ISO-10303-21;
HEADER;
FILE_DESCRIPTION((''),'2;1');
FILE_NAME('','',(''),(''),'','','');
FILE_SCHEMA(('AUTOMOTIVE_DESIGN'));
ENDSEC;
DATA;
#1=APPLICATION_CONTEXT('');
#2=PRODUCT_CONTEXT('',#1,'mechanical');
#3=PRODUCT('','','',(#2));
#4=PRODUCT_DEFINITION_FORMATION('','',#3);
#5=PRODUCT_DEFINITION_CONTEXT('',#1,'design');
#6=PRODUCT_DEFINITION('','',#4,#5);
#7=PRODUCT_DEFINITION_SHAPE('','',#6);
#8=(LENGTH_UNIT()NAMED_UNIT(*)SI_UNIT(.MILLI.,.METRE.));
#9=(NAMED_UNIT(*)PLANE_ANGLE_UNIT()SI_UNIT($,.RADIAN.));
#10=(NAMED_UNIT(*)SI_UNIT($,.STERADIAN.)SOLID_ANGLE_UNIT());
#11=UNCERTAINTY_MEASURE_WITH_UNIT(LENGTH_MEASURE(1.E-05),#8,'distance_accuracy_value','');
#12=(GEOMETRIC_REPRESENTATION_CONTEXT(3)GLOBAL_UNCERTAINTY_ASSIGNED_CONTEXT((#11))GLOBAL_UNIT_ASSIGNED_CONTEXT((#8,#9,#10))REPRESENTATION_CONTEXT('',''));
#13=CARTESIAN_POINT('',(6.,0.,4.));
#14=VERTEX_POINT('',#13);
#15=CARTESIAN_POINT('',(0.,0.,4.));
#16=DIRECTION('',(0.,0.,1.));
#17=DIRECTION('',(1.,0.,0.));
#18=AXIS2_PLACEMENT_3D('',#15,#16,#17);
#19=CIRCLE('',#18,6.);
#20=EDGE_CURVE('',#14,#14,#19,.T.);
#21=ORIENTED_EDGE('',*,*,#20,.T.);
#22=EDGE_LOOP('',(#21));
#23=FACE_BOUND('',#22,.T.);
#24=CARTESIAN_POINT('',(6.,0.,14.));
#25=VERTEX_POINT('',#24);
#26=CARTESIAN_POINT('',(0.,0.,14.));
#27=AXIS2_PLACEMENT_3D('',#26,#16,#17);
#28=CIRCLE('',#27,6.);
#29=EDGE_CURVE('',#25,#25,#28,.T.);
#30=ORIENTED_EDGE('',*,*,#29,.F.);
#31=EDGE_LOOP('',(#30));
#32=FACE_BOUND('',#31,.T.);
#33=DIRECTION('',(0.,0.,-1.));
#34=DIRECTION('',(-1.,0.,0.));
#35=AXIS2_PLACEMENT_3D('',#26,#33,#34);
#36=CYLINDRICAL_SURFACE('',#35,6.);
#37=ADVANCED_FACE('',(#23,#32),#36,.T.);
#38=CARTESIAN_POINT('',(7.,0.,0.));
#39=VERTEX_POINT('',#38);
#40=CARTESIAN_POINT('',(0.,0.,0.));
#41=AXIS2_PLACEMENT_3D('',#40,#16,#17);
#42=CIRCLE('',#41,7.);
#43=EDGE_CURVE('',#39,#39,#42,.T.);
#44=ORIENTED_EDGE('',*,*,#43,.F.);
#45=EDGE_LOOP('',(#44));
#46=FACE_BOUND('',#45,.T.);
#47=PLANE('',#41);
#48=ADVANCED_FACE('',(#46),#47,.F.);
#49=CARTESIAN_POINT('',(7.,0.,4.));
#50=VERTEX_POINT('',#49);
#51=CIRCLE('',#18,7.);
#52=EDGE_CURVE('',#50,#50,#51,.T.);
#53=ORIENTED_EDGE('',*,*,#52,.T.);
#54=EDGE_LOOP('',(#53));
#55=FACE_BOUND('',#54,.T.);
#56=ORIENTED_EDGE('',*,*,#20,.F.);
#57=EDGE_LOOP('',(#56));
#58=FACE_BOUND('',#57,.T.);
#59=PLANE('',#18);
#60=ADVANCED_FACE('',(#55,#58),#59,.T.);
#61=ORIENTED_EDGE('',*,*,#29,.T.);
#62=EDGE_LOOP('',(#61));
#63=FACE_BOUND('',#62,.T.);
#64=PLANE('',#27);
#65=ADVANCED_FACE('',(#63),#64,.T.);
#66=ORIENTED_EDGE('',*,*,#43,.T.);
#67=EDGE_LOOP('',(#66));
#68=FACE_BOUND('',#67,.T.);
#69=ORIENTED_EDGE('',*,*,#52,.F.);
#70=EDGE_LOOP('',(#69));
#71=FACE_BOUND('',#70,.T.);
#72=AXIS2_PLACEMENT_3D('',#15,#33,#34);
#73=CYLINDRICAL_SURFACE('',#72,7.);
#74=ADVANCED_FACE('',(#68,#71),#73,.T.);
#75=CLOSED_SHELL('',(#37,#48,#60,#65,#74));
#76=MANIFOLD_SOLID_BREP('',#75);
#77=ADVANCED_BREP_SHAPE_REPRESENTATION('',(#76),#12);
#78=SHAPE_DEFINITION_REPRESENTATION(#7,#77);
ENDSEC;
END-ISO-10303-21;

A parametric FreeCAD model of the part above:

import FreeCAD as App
import Part
import Sketcher

V = App.Vector

doc = App.newDocument("Part")
params = doc.addObject("Spreadsheet::Sheet", "Params")
for row, (alias, value) in enumerate([
    ("sketch1_diameter", "14 mm"),
    ("pad1_length", "4 mm"),
    ("sketch2_diameter", "12 mm"),
    ("pad2_length", "10 mm"),
], start=1):
    params.set(f"A{row}", alias)
    params.set(f"B{row}", "=" + value)
    params.setAlias(f"B{row}", alias)

body = doc.addObject("PartDesign::Body", "Body")

sketch1 = body.newObject("Sketcher::SketchObject", "Sketch")
sketch1.AttachmentSupport = (doc.getObject("XY_Plane"), [""])
sketch1.MapMode = "FlatFace"
sketch1.addGeometry(Part.Circle(V(0, 0, 0), V(0, 0, 1), 7), False)
sketch1.addConstraint([
    Sketcher.Constraint("Coincident", 0, 3, -1, 1),
    Sketcher.Constraint("Diameter", 0, 14.0),
])
sketch1.setExpression("Constraints[1]", "Params.sketch1_diameter")
pad1 = body.newObject("PartDesign::Pad", "Pad")
pad1.Profile = sketch1
pad1.setExpression("Length", "Params.pad1_length")

sketch2 = body.newObject("Sketcher::SketchObject", "Sketch001")
sketch2.AttachmentSupport = (doc.getObject("XY_Plane"), [""])
sketch2.MapMode = "FlatFace"
sketch2.AttachmentOffset = App.Placement(V(0, 0, 4), App.Rotation())
sketch2.addGeometry(Part.Circle(V(0, 0, 0), V(0, 0, 1), 6), False)
sketch2.addConstraint([
    Sketcher.Constraint("Coincident", 0, 3, -1, 1),
    Sketcher.Constraint("Diameter", 0, 12.0),
])
sketch2.setExpression("Constraints[1]", "Params.sketch2_diameter")
pad2 = body.newObject("PartDesign::Pad", "Pad001")
pad2.Profile = sketch2
pad2.setExpression("Length", "Params.pad2_length")

doc.recompute()
